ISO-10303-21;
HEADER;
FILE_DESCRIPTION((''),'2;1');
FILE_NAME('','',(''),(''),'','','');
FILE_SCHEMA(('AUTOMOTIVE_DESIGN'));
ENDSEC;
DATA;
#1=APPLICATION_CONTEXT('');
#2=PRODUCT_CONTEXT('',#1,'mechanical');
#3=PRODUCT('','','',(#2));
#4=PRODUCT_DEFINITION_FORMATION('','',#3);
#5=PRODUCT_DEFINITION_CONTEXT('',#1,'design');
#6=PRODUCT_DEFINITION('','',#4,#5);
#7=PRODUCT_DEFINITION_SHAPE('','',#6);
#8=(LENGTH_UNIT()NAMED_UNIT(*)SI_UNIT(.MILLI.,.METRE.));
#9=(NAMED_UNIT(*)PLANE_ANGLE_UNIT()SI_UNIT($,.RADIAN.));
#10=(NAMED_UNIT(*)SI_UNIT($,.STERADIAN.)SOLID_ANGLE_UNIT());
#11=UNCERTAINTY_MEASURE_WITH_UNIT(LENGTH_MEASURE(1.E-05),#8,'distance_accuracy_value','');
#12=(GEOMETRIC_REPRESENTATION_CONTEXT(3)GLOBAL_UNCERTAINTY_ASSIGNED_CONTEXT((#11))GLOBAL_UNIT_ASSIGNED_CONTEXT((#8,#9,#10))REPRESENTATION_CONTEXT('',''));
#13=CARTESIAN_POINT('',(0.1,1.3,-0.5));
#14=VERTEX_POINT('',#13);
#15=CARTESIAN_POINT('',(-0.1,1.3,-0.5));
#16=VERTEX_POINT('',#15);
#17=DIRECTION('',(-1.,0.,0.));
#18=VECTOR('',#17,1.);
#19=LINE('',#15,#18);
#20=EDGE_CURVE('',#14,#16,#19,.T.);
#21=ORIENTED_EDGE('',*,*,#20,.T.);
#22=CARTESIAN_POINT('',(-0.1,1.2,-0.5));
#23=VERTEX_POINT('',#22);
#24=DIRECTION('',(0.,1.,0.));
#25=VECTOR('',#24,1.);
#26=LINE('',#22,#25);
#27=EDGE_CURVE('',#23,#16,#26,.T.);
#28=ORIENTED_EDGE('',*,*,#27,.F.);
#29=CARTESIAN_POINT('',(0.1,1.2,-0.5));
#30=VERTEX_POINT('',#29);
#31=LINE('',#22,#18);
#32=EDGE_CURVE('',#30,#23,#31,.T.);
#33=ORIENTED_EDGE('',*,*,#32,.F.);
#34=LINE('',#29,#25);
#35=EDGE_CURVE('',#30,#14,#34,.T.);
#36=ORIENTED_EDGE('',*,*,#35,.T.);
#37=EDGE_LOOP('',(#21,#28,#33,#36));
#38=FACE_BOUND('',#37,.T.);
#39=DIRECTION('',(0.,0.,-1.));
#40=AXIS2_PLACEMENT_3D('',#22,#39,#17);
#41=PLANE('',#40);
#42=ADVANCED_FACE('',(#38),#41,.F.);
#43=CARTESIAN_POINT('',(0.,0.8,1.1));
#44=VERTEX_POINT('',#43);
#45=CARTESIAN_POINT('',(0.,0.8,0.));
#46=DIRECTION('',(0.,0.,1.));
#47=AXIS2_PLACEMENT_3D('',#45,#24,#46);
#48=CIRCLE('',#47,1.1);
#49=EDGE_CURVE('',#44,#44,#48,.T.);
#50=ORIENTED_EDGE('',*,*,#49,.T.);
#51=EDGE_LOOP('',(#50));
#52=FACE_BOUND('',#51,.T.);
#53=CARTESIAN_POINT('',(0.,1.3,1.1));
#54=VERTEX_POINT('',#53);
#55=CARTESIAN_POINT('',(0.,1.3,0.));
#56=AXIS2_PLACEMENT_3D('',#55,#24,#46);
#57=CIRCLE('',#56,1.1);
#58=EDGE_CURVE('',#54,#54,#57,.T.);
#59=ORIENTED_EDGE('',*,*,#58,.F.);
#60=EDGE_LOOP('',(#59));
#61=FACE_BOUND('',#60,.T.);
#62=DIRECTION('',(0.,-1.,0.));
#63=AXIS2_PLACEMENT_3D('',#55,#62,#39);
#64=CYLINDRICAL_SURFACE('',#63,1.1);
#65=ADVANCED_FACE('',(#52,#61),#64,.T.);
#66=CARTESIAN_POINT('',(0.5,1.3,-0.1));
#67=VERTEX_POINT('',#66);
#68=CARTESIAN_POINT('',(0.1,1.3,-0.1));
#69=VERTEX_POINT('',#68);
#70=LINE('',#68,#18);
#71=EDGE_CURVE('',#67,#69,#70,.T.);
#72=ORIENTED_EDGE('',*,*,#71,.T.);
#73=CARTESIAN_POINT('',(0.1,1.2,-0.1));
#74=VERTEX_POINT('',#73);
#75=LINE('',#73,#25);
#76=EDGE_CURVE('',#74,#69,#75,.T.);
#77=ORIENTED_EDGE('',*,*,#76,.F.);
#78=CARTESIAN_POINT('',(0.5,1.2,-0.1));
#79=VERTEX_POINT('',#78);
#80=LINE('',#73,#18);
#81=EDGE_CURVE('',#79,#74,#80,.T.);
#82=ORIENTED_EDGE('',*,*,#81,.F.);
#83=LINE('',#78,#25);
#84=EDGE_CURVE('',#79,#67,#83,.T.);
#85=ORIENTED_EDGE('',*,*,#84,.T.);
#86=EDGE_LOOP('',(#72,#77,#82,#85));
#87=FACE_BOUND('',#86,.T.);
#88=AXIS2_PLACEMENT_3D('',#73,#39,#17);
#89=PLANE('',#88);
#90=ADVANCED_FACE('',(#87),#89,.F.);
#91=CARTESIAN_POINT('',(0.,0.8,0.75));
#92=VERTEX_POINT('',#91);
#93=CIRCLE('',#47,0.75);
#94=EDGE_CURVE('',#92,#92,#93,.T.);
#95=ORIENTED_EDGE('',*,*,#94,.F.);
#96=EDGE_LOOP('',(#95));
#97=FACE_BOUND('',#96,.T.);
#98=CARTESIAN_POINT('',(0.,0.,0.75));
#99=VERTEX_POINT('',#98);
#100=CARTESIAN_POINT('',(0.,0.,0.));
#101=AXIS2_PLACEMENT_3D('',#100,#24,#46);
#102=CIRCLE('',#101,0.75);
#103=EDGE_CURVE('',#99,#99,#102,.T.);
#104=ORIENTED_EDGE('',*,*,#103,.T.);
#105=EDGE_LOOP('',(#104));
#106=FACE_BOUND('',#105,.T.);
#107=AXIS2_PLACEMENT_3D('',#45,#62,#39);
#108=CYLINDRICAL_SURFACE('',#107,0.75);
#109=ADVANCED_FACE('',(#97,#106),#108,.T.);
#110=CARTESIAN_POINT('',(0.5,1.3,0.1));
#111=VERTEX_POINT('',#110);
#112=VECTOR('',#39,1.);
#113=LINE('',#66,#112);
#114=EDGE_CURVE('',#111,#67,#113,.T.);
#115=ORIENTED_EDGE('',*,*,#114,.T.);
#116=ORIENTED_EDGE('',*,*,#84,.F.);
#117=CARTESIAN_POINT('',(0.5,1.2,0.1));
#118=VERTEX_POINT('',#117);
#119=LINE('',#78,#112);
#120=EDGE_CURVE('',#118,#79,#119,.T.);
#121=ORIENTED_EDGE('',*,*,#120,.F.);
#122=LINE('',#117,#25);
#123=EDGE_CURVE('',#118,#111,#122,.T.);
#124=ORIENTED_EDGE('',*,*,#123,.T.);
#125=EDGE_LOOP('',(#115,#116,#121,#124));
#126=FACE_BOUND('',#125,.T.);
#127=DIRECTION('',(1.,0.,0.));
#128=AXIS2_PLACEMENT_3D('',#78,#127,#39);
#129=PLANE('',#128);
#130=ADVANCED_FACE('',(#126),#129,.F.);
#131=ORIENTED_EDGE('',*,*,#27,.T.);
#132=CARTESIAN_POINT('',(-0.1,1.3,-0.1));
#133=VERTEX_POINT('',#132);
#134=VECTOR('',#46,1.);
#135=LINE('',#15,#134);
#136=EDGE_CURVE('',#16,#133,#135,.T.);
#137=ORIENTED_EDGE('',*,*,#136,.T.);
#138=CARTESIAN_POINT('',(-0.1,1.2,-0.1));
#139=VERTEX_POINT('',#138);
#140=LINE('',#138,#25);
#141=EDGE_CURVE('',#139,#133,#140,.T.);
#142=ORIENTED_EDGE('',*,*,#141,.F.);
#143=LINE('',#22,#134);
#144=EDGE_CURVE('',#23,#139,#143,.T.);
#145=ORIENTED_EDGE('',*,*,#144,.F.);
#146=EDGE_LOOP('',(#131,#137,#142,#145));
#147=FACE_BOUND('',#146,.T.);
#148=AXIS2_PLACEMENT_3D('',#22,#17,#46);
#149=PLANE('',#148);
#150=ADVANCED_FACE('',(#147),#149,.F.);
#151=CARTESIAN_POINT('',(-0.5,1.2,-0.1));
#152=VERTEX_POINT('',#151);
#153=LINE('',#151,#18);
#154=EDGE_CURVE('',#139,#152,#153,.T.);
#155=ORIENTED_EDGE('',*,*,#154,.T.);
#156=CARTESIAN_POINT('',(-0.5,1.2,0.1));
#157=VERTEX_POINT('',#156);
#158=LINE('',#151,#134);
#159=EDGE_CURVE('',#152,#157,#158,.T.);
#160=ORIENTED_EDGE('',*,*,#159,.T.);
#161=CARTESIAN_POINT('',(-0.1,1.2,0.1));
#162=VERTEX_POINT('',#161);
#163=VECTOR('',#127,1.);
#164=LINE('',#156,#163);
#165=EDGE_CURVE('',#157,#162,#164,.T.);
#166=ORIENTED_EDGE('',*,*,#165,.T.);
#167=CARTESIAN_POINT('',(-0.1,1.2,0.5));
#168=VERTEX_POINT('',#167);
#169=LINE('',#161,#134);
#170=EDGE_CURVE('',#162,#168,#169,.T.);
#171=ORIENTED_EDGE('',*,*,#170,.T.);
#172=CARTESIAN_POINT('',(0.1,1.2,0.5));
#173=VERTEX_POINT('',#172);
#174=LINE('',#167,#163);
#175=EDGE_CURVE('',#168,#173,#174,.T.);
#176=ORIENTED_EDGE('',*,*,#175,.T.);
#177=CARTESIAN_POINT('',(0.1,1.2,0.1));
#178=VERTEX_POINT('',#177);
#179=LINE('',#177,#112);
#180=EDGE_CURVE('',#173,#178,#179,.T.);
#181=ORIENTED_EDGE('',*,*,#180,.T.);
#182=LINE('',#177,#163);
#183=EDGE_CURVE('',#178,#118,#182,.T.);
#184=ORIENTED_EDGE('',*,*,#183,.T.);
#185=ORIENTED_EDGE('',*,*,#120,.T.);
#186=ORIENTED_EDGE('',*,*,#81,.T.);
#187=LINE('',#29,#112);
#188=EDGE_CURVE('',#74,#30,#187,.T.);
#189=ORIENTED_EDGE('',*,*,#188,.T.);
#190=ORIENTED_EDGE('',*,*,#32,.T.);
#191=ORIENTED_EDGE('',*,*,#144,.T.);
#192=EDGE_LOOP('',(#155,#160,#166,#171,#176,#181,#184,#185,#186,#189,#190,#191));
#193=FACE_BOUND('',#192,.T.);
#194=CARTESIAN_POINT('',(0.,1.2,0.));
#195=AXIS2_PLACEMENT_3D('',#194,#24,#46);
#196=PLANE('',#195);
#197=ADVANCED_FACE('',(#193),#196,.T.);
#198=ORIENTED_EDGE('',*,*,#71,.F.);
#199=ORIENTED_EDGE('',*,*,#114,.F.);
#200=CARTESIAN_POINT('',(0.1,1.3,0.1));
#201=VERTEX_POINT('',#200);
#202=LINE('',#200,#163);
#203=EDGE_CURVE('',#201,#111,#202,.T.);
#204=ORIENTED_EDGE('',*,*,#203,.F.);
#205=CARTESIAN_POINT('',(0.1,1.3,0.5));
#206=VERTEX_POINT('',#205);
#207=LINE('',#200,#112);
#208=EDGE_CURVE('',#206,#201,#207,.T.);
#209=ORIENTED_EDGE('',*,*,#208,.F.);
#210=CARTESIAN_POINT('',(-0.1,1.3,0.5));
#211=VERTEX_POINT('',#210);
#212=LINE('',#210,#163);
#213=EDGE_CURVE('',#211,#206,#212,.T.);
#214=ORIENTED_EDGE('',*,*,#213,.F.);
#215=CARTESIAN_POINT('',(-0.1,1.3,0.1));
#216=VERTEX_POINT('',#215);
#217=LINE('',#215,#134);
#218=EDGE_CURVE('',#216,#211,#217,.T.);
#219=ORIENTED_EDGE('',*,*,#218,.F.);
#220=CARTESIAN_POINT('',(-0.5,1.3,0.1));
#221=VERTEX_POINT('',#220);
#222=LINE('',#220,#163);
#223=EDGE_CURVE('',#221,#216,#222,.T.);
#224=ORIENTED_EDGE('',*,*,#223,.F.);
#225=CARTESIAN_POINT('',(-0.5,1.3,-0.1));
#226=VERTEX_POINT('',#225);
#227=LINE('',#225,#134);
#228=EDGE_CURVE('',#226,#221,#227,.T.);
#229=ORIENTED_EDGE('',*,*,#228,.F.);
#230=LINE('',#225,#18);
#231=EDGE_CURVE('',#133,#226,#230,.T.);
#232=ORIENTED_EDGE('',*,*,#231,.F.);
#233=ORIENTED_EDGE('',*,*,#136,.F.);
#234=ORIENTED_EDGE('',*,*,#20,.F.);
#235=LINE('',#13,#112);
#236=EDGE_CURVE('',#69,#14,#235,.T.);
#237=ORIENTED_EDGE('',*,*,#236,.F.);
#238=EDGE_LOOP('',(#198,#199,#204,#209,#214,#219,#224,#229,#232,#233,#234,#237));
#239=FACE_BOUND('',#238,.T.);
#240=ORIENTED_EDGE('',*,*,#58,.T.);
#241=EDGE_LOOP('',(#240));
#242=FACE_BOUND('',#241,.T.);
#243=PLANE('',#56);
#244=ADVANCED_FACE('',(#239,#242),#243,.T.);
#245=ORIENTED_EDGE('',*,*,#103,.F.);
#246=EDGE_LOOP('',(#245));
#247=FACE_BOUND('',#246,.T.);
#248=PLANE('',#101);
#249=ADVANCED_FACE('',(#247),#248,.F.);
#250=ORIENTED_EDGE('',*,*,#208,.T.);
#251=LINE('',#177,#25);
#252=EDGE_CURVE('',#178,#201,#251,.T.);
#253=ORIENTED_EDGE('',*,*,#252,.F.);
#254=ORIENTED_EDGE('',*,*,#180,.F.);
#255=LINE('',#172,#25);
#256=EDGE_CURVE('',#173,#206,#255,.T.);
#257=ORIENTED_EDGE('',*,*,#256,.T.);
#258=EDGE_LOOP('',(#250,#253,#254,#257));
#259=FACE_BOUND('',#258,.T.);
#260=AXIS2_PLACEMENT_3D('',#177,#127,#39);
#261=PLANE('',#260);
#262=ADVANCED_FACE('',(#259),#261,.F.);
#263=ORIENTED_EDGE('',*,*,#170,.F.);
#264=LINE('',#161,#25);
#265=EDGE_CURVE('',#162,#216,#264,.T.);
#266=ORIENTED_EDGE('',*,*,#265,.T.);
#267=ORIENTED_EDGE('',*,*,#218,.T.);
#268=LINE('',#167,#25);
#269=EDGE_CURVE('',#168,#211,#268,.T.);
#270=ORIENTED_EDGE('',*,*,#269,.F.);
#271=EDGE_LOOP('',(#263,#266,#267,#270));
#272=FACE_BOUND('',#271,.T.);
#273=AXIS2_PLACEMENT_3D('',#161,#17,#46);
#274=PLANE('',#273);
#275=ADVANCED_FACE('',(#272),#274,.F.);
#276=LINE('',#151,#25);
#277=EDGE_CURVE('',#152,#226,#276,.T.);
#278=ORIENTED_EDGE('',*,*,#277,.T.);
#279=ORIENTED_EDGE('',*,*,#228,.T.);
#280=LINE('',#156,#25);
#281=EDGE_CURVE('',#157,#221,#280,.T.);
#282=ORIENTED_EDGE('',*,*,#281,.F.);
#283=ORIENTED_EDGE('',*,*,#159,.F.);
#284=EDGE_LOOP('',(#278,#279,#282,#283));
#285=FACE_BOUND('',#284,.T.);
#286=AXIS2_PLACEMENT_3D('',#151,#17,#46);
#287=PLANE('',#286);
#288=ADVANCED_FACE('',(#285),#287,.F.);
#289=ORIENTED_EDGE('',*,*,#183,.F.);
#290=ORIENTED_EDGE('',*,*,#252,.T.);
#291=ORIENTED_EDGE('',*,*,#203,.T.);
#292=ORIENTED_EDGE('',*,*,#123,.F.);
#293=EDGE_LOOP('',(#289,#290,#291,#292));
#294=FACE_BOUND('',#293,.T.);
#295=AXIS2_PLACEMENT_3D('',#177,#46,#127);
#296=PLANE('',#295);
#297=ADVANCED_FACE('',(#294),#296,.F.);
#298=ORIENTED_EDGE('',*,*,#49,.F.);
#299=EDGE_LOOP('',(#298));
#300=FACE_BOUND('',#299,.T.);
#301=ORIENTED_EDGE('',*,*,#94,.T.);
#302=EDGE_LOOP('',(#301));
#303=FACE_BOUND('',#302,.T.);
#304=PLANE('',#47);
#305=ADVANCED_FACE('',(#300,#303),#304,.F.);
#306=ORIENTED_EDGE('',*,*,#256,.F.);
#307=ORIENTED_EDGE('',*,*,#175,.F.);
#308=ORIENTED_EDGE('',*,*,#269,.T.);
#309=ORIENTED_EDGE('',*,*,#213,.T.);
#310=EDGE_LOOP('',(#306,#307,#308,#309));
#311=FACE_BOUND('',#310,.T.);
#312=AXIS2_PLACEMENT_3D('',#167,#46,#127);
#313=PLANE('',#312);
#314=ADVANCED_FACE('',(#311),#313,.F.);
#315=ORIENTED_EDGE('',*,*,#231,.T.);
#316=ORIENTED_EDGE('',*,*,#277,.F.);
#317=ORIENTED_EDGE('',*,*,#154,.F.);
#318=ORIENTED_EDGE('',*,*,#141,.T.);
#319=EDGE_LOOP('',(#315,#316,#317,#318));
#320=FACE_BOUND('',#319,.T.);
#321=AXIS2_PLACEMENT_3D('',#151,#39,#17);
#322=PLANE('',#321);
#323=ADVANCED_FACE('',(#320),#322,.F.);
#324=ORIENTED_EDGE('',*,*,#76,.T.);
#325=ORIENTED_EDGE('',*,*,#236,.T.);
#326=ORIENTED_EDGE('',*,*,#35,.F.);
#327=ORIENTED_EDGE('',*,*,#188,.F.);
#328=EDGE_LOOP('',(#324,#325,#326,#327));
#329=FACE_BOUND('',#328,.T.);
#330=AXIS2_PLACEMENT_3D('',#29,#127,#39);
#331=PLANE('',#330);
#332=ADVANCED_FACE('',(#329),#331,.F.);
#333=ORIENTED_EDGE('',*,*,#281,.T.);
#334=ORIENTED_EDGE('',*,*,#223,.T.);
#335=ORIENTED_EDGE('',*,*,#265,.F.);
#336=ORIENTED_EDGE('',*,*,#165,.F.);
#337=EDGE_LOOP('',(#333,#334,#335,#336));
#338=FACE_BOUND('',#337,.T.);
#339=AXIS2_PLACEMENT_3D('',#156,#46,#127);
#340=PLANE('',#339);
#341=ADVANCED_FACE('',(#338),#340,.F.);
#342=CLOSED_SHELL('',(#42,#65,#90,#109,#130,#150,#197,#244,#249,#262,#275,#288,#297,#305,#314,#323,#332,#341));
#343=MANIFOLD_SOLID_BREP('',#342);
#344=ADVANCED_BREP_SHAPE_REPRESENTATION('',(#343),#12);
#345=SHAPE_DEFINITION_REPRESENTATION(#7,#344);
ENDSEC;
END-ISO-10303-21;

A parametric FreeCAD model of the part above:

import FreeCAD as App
import Part
import Sketcher
Q = App.Units.Quantity

doc = App.newDocument("Part")
params = doc.addObject("Spreadsheet::Sheet", "Params")
for row, (alias, value) in enumerate([
    ("sketch1_diameter", "1.5 mm"),
    ("pad1_length", "0.8 mm"),
    ("sketch2_diameter", "2.2 mm"),
    ("pad2_length", "0.5 mm"),
    ("sketch3_width", "0.2 mm"),
    ("sketch3_width2", "0.4 mm"),
    ("pocket1_length", "0.1 mm"),
], start=1):
    params.set(f"A{row}", alias)
    params.set(f"B{row}", "=" + value)
    params.setAlias(f"B{row}", alias)

body = doc.addObject("PartDesign::Body", "Body")

sketch1 = body.newObject("Sketcher::SketchObject", "Sketch")
sketch1.AttachmentSupport = (doc.getObject("XZ_Plane"), [""])
sketch1.MapMode = "FlatFace"
sketch1.addGeometry(Part.Circle(App.Vector(0, 0, 0), App.Vector(0, 0, 1), 0.75), False)
sketch1.addConstraint(Sketcher.Constraint("Coincident", 0, 3, -1, 1))
sketch1.addConstraint(Sketcher.Constraint("Diameter", 0, Q("1.5 mm")))
sketch1.setExpression("Constraints[1]", "Params.sketch1_diameter")
pad1 = body.newObject("PartDesign::Pad", "Pad")
pad1.Profile = sketch1
pad1.setExpression("Length", "Params.pad1_length")
pad1.Reversed = True

sketch2 = body.newObject("Sketcher::SketchObject", "Sketch001")
sketch2.AttachmentSupport = (doc.getObject("XZ_Plane"), [""])
sketch2.MapMode = "FlatFace"
sketch2.AttachmentOffset = App.Placement(App.Vector(0, 0, -0.8), App.Rotation())
sketch2.addGeometry(Part.Circle(App.Vector(0, 0, 0), App.Vector(0, 0, 1), 1.1), False)
sketch2.addConstraint(Sketcher.Constraint("Coincident", 0, 3, -1, 1))
sketch2.addConstraint(Sketcher.Constraint("Diameter", 0, Q("2.2 mm")))
sketch2.setExpression("Constraints[1]", "Params.sketch2_diameter")
pad2 = body.newObject("PartDesign::Pad", "Pad001")
pad2.Profile = sketch2
pad2.setExpression("Length", "Params.pad2_length")
pad2.Reversed = True

sketch3 = body.newObject("Sketcher::SketchObject", "Sketch002")
sketch3.AttachmentSupport = (doc.getObject("XZ_Plane"), [""])
sketch3.MapMode = "FlatFace"
sketch3.AttachmentOffset = App.Placement(App.Vector(0, 0, -1.3), App.Rotation())
sketch3.addGeometry(Part.LineSegment(App.Vector(-0.1, 0.1, 0), App.Vector(-0.1, 0.5, 0)), False)
sketch3.addGeometry(Part.LineSegment(App.Vector(-0.1, 0.5, 0), App.Vector(0.1, 0.5, 0)), False)
sketch3.addGeometry(Part.LineSegment(App.Vector(0.1, 0.5, 0), App.Vector(0.1, 0.1, 0)), False)
sketch3.addGeometry(Part.LineSegment(App.Vector(0.1, 0.1, 0), App.Vector(0.5, 0.1, 0)), False)
sketch3.addGeometry(Part.LineSegment(App.Vector(0.5, 0.1, 0), App.Vector(0.5, -0.1, 0)), False)
sketch3.addGeometry(Part.LineSegment(App.Vector(0.5, -0.1, 0), App.Vector(0.1, -0.1, 0)), False)
sketch3.addGeometry(Part.LineSegment(App.Vector(0.1, -0.1, 0), App.Vector(0.1, -0.5, 0)), False)
sketch3.addGeometry(Part.LineSegment(App.Vector(0.1, -0.5, 0), App.Vector(-0.1, -0.5, 0)), False)
sketch3.addGeometry(Part.LineSegment(App.Vector(-0.1, -0.5, 0), App.Vector(-0.1, -0.1, 0)), False)
sketch3.addGeometry(Part.LineSegment(App.Vector(-0.1, -0.1, 0), App.Vector(-0.5, -0.1, 0)), False)
sketch3.addGeometry(Part.LineSegment(App.Vector(-0.5, -0.1, 0), App.Vector(-0.5, 0.1, 0)), False)
sketch3.addGeometry(Part.LineSegment(App.Vector(-0.5, 0.1, 0), App.Vector(-0.1, 0.1, 0)), False)
sketch3.addConstraint(Sketcher.Constraint("Coincident", 0, 2, 1, 1))
sketch3.addConstraint(Sketcher.Constraint("Coincident", 1, 2, 2, 1))
sketch3.addConstraint(Sketcher.Constraint("Coincident", 2, 2, 3, 1))
sketch3.addConstraint(Sketcher.Constraint("Coincident", 3, 2, 4, 1))
sketch3.addConstraint(Sketcher.Constraint("Coincident", 4, 2, 5, 1))
sketch3.addConstraint(Sketcher.Constraint("Coincident", 5, 2, 6, 1))
sketch3.addConstraint(Sketcher.Constraint("Coincident", 6, 2, 7, 1))
sketch3.addConstraint(Sketcher.Constraint("Coincident", 7, 2, 8, 1))
sketch3.addConstraint(Sketcher.Constraint("Coincident", 8, 2, 9, 1))
sketch3.addConstraint(Sketcher.Constraint("Coincident", 9, 2, 10, 1))
sketch3.addConstraint(Sketcher.Constraint("Coincident", 10, 2, 11, 1))
sketch3.addConstraint(Sketcher.Constraint("Coincident", 11, 2, 0, 1))
sketch3.addConstraint(Sketcher.Constraint("Vertical", 0))
sketch3.addConstraint(Sketcher.Constraint("Horizontal", 1))
sketch3.addConstraint(Sketcher.Constraint("Vertical", 2))
sketch3.addConstraint(Sketcher.Constraint("Horizontal", 3))
sketch3.addConstraint(Sketcher.Constraint("Vertical", 4))
sketch3.addConstraint(Sketcher.Constraint("Horizontal", 5))
sketch3.addConstraint(Sketcher.Constraint("Vertical", 6))
sketch3.addConstraint(Sketcher.Constraint("Horizontal", 7))
sketch3.addConstraint(Sketcher.Constraint("Vertical", 8))
sketch3.addConstraint(Sketcher.Constraint("Horizontal", 9))
sketch3.addConstraint(Sketcher.Constraint("Vertical", 10))
sketch3.addConstraint(Sketcher.Constraint("Horizontal", 11))
sketch3.addConstraint(Sketcher.Constraint("Symmetric", 0, 2, 6, 2, -1, 1))
sketch3.addConstraint(Sketcher.Constraint("Symmetric", 2, 2, 8, 2, -1, 1))
sketch3.addConstraint(Sketcher.Constraint("Symmetric", 4, 2, 10, 2, -1, 1))
sketch3.addConstraint(Sketcher.Constraint("Symmetric", 5, 2, 8, 2, -2))
sketch3.addConstraint(Sketcher.Constraint("Equal", 11, 0))
sketch3.addConstraint(Sketcher.Constraint("Equal", 7, 4))
sketch3.addConstraint(Sketcher.Constraint("DistanceX", 1, 1, 1, 2, Q("0.2 mm")))
sketch3.addConstraint(Sketcher.Constraint("DistanceX", 3, 1, 3, 2, Q("0.4 mm")))
sketch3.setExpression("Constraints[30]", "Params.sketch3_width")
sketch3.setExpression("Constraints[31]", "Params.sketch3_width2")
pocket1 = body.newObject("PartDesign::Pocket", "Pocket")
pocket1.Profile = sketch3
pocket1.setExpression("Length", "Params.pocket1_length")
pocket1.Reversed = True

doc.recompute()
